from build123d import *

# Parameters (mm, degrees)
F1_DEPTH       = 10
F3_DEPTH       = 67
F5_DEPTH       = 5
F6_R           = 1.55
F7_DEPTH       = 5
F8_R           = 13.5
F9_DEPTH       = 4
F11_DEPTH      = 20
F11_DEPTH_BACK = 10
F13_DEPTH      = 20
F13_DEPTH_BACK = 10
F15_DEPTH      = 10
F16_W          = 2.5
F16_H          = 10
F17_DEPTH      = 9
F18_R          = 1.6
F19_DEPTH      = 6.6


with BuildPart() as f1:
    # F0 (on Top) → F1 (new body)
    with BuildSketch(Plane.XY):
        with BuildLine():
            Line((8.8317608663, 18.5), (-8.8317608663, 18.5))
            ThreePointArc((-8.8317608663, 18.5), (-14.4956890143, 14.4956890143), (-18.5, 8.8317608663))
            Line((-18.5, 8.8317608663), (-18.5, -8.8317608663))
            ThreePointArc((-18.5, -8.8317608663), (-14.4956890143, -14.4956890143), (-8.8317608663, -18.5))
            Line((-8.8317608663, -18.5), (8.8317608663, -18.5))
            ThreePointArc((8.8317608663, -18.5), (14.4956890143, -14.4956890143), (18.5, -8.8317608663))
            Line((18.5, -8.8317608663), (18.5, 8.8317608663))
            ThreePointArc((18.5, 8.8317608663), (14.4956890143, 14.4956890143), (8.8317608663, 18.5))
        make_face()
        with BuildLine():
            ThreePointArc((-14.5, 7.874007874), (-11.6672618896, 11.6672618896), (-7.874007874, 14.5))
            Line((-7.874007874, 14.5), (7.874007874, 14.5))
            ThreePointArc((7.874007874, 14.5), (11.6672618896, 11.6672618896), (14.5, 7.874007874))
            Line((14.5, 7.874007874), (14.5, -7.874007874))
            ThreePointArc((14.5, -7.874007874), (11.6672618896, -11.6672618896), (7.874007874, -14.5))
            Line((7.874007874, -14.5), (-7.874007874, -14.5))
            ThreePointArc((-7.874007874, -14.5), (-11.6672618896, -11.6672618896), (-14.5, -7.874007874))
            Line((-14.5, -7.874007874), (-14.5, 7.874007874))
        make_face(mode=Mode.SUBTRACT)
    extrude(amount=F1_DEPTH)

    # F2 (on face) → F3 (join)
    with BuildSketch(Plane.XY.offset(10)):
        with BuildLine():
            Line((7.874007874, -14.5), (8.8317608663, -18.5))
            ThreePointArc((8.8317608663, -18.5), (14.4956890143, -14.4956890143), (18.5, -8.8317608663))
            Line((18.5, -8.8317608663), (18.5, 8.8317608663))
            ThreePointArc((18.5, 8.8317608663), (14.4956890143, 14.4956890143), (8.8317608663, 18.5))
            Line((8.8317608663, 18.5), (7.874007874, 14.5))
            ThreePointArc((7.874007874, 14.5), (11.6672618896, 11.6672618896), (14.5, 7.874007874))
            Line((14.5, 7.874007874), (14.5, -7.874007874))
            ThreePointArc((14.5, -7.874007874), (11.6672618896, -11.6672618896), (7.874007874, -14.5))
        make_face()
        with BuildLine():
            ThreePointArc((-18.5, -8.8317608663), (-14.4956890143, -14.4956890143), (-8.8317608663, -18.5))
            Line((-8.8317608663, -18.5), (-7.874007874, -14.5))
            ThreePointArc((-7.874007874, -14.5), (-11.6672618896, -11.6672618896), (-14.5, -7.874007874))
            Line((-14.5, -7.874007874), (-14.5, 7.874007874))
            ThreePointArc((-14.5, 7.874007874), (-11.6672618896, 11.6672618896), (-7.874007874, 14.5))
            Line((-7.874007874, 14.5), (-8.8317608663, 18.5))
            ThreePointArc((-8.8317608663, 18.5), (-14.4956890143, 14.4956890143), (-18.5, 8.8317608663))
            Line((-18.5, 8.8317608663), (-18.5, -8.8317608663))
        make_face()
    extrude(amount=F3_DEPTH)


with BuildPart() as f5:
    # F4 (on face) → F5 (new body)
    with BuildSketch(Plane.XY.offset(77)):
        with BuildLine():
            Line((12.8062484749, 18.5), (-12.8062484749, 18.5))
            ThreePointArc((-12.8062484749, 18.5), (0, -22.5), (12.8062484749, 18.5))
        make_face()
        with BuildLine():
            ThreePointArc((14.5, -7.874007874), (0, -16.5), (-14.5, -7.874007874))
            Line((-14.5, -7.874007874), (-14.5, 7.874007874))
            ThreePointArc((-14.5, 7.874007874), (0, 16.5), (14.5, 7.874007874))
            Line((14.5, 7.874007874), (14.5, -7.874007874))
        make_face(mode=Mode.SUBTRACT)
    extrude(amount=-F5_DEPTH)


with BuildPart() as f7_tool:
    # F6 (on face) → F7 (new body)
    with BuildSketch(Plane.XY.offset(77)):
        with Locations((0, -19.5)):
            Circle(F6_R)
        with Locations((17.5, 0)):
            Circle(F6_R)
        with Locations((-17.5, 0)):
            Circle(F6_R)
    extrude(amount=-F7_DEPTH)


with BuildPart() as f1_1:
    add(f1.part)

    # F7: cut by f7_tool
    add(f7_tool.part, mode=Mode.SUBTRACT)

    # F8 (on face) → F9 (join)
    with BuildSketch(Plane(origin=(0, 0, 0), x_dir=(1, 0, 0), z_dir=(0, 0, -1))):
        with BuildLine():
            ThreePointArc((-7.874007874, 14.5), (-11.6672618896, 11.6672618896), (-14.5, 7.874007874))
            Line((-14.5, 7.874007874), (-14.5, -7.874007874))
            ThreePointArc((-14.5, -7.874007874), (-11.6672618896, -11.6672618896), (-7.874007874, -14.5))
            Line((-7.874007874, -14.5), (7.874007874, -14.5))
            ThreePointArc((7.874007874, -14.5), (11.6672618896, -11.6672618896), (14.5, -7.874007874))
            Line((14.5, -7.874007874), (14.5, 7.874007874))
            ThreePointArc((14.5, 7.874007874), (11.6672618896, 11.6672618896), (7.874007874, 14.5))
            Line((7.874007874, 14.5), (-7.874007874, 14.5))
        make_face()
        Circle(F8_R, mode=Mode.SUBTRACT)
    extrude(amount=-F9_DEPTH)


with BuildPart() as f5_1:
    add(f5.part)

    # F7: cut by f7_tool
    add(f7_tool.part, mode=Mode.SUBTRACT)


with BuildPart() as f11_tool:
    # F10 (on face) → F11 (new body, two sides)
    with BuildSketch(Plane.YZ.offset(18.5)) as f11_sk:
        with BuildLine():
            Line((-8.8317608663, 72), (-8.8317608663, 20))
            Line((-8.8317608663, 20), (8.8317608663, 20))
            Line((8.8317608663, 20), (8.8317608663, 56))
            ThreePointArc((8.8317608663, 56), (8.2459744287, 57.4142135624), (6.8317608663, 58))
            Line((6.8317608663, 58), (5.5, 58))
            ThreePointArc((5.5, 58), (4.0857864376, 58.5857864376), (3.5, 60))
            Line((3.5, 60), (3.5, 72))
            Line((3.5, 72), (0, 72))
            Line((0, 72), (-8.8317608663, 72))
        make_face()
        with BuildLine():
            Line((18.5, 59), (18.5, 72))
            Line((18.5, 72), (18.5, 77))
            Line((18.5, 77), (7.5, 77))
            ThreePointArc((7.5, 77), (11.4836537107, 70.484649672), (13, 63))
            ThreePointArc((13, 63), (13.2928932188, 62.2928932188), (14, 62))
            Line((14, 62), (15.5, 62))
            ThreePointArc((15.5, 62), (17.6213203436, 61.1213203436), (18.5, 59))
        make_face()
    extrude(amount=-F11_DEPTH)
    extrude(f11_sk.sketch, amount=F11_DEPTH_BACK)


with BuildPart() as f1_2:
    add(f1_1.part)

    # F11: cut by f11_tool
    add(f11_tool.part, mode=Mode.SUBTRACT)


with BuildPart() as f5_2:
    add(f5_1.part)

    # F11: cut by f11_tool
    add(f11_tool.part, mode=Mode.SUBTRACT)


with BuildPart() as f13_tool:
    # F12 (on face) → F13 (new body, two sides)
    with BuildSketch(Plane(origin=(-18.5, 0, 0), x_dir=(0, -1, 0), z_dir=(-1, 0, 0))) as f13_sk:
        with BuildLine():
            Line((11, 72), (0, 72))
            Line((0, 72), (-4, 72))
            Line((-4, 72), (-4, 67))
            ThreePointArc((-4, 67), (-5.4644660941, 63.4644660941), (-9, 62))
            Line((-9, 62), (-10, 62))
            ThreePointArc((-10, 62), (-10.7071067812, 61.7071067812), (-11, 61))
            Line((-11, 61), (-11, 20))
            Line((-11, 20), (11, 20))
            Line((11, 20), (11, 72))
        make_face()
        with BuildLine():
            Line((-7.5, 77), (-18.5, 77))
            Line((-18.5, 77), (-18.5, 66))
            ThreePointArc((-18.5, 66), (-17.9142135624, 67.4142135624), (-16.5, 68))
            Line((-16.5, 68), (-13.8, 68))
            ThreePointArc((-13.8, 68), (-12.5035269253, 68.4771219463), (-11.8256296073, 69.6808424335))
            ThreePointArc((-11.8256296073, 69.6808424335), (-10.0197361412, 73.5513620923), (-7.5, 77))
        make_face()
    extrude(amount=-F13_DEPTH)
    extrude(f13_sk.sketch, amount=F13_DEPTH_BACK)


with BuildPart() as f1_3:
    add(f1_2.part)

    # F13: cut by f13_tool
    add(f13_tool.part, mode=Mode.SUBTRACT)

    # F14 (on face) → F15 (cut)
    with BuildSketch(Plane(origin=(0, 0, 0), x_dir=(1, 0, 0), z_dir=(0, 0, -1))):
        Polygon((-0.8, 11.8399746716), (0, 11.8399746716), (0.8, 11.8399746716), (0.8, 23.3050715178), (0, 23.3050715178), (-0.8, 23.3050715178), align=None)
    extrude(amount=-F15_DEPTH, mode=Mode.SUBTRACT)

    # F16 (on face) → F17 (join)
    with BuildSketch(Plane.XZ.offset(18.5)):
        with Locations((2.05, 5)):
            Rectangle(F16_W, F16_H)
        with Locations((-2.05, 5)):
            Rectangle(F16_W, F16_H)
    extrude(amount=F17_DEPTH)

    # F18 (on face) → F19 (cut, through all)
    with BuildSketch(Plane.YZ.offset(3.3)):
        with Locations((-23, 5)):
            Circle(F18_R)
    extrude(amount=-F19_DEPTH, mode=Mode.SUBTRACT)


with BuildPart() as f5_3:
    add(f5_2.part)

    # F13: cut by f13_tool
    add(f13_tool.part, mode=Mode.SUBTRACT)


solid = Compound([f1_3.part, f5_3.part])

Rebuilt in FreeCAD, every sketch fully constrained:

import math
import FreeCAD as App
import Part
import Sketcher

doc = App.newDocument("Part")
body = doc.addObject("PartDesign::Body", "Body")

sketch1 = doc.addObject("Sketcher::SketchObject", "Sketch")
body.addObject(sketch1)
sketch1.AttachmentSupport = (doc.XY_Plane, [""])
sketch1.MapMode = "FlatFace"
sketch1.addGeometry([
    Part.LineSegment(App.Vector(9, 18, 0), App.Vector(-9, 18, 0)),
    Part.ArcOfCircle(Part.Circle(App.Vector(0, 0, 0), App.Vector(0, 0, 1), 20), math.radians(116), math.radians(154)),
    Part.LineSegment(App.Vector(-18, 9, 0), App.Vector(-18, -9, 0)),
    Part.ArcOfCircle(Part.Circle(App.Vector(0, 0, 0), App.Vector(0, 0, 1), 20), math.radians(-154), math.radians(-116)),
    Part.LineSegment(App.Vector(-9, -18, 0), App.Vector(9, -18, 0)),
    Part.ArcOfCircle(Part.Circle(App.Vector(0, 0, 0), App.Vector(0, 0, 1), 20), math.radians(-64), math.radians(-26)),
    Part.LineSegment(App.Vector(18, -9, 0), App.Vector(18, 9, 0)),
    Part.ArcOfCircle(Part.Circle(App.Vector(0, 0, 0), App.Vector(0, 0, 1), 20), math.radians(26), math.radians(64)),
    Part.LineSegment(App.Vector(-14, -8, 0), App.Vector(-14, 8, 0)),
    Part.ArcOfCircle(Part.Circle(App.Vector(0, 0, 0), App.Vector(0, 0, 1), 16), math.radians(119), math.radians(151)),
    Part.LineSegment(App.Vector(-8, 14, 0), App.Vector(8, 14, 0)),
    Part.ArcOfCircle(Part.Circle(App.Vector(0, 0, 0), App.Vector(0, 0, 1), 16), math.radians(29), math.radians(61)),
    Part.LineSegment(App.Vector(14, 8, 0), App.Vector(14, -8, 0)),
    Part.ArcOfCircle(Part.Circle(App.Vector(0, 0, 0), App.Vector(0, 0, 1), 16), math.radians(-61), math.radians(-29)),
    Part.LineSegment(App.Vector(8, -14, 0), App.Vector(-8, -14, 0)),
    Part.ArcOfCircle(Part.Circle(App.Vector(0, 0, 0), App.Vector(0, 0, 1), 16), math.radians(-151), math.radians(-119)),
], False)
sketch1.addConstraint([
    Sketcher.Constraint("Coincident", 0, 2, 1, 1),
    Sketcher.Constraint("Coincident", 1, 2, 2, 1),
    Sketcher.Constraint("Coincident", 2, 2, 3, 1),
    Sketcher.Constraint("Coincident", 3, 2, 4, 1),
    Sketcher.Constraint("Coincident", 4, 2, 5, 1),
    Sketcher.Constraint("Coincident", 5, 2, 6, 1),
    Sketcher.Constraint("Coincident", 6, 2, 7, 1),
    Sketcher.Constraint("Coincident", 7, 2, 0, 1),
    Sketcher.Constraint("Coincident", 8, 2, 9, 2),
    Sketcher.Constraint("Coincident", 9, 1, 10, 1),
    Sketcher.Constraint("Coincident", 10, 2, 11, 2),
    Sketcher.Constraint("Coincident", 11, 1, 12, 1),
    Sketcher.Constraint("Coincident", 12, 2, 13, 2),
    Sketcher.Constraint("Coincident", 13, 1, 14, 1),
    Sketcher.Constraint("Coincident", 14, 2, 15, 2),
    Sketcher.Constraint("Coincident", 15, 1, 8, 1),
    Sketcher.Constraint("Horizontal", 0),
    Sketcher.Constraint("Vertical", 2),
    Sketcher.Constraint("Horizontal", 4),
    Sketcher.Constraint("Vertical", 6),
    Sketcher.Constraint("Vertical", 8),
    Sketcher.Constraint("Horizontal", 10),
    Sketcher.Constraint("Vertical", 12),
    Sketcher.Constraint("Horizontal", 14),
    Sketcher.Constraint("Coincident", 1, 3, -1, 1),
    Sketcher.Constraint("Coincident", 3, 3, -1, 1),
    Sketcher.Constraint("Coincident", 5, 3, -1, 1),
    Sketcher.Constraint("Coincident", 7, 3, -1, 1),
    Sketcher.Constraint("Coincident", 9, 3, -1, 1),
    Sketcher.Constraint("Coincident", 11, 3, -1, 1),
    Sketcher.Constraint("Coincident", 13, 3, -1, 1),
    Sketcher.Constraint("Coincident", 15, 3, -1, 1),
    Sketcher.Constraint("Equal", 1, 3),
    Sketcher.Constraint("Equal", 3, 5),
    Sketcher.Constraint("Equal", 5, 7),
    Sketcher.Constraint("Equal", 9, 11),
    Sketcher.Constraint("Equal", 11, 13),
    Sketcher.Constraint("Equal", 13, 15),
    Sketcher.Constraint("Horizontal", 2, 2, 5, 2),
    Sketcher.Constraint("Horizontal", 8, 2, 11, 1),
    Sketcher.Constraint("Vertical", 0, 2, 3, 2),
    Sketcher.Constraint("Vertical", 10, 2, 13, 1),
    Sketcher.Constraint("Equal", 4, 2),
    Sketcher.Constraint("Equal", 14, 8),
    Sketcher.Constraint("Radius", 1, 20.5),
    Sketcher.Constraint("Radius", 9, 16.5),
    Sketcher.Constraint("DistanceX", 1, 2, 8, 2, 4.0),
    Sketcher.Constraint("DistanceY", -1, 1, 0, 2, 18.5),
])
pad1 = doc.addObject("PartDesign::Pad", "Pad")
body.addObject(pad1)
pad1.Profile = sketch1
pad1.Length = 10

sketch2 = doc.addObject("Sketcher::SketchObject", "Sketch001")
body.addObject(sketch2)
sketch2.AttachmentSupport = (doc.XY_Plane, [""])
sketch2.MapMode = "FlatFace"
sketch2.AttachmentOffset = App.Placement(App.Vector(0, 0, 10), App.Rotation())
sketch2.addGeometry([
    Part.LineSegment(App.Vector(7.9, -14.5, 0), App.Vector(8.8, -18.5, 0)),
    Part.ArcOfCircle(Part.Circle(App.Vector(0, 0, 0), App.Vector(0, 0, 1), 20.5), math.radians(-64), math.radians(-26)),
    Part.LineSegment(App.Vector(18.5, -8.8, 0), App.Vector(18.5, 8.8, 0)),
    Part.ArcOfCircle(Part.Circle(App.Vector(0, 0, 0), App.Vector(0, 0, 1), 20.5), math.radians(26), math.radians(64)),
    Part.LineSegment(App.Vector(8.8, 18.5, 0), App.Vector(7.9, 14.5, 0)),
    Part.ArcOfCircle(Part.Circle(App.Vector(0, 0, 0), App.Vector(0, 0, 1), 16.5), math.radians(29), math.radians(61)),
    Part.LineSegment(App.Vector(14.5, 7.9, 0), App.Vector(14.5, -7.9, 0)),
    Part.ArcOfCircle(Part.Circle(App.Vector(0, 0, 0), App.Vector(0, 0, 1), 16.5), math.radians(-61), math.radians(-29)),
    Part.ArcOfCircle(Part.Circle(App.Vector(0, 0, 0), App.Vector(0, 0, 1), 20.5), math.radians(-154), math.radians(-116)),
    Part.LineSegment(App.Vector(-8.8, -18.5, 0), App.Vector(-7.9, -14.5, 0)),
    Part.ArcOfCircle(Part.Circle(App.Vector(0, 0, 0), App.Vector(0, 0, 1), 16.5), math.radians(-151), math.radians(-119)),
    Part.LineSegment(App.Vector(-14.5, -7.9, 0), App.Vector(-14.5, 7.9, 0)),
    Part.ArcOfCircle(Part.Circle(App.Vector(0, 0, 0), App.Vector(0, 0, 1), 16.5), math.radians(119), math.radians(151)),
    Part.LineSegment(App.Vector(-7.9, 14.5, 0), App.Vector(-8.8, 18.5, 0)),
    Part.ArcOfCircle(Part.Circle(App.Vector(0, 0, 0), App.Vector(0, 0, 1), 20.5), math.radians(116), math.radians(154)),
    Part.LineSegment(App.Vector(-18.5, 8.8, 0), App.Vector(-18.5, -8.8, 0)),
], False)
sketch2.addConstraint([
    Sketcher.Constraint("Coincident", 0, 2, 1, 1),
    Sketcher.Constraint("Coincident", 1, 2, 2, 1),
    Sketcher.Constraint("Coincident", 2, 2, 3, 1),
    Sketcher.Constraint("Coincident", 3, 2, 4, 1),
    Sketcher.Constraint("Coincident", 4, 2, 5, 2),
    Sketcher.Constraint("Coincident", 5, 1, 6, 1),
    Sketcher.Constraint("Coincident", 6, 2, 7, 2),
    Sketcher.Constraint("Coincident", 7, 1, 0, 1),
    Sketcher.Constraint("Coincident", 8, 2, 9, 1),
    Sketcher.Constraint("Coincident", 9, 2, 10, 2),
    Sketcher.Constraint("Coincident", 10, 1, 11, 1),
    Sketcher.Constraint("Coincident", 11, 2, 12, 2),
    Sketcher.Constraint("Coincident", 12, 1, 13, 1),
    Sketcher.Constraint("Coincident", 13, 2, 14, 1),
    Sketcher.Constraint("Coincident", 14, 2, 15, 1),
    Sketcher.Constraint("Coincident", 15, 2, 8, 1),
    Sketcher.Constraint("Vertical", 2),
    Sketcher.Constraint("Vertical", 6),
    Sketcher.Constraint("Vertical", 11),
    Sketcher.Constraint("Vertical", 15),
    Sketcher.Constraint("Coincident", 1, 3, -1, 1),
    Sketcher.Constraint("Coincident", 3, 3, -1, 1),
    Sketcher.Constraint("Coincident", 5, 3, -1, 1),
    Sketcher.Constraint("Coincident", 7, 3, -1, 1),
    Sketcher.Constraint("Coincident", 8, 3, -1, 1),
    Sketcher.Constraint("Coincident", 10, 3, -1, 1),
    Sketcher.Constraint("Coincident", 12, 3, -1, 1),
    Sketcher.Constraint("Coincident", 14, 3, -1, 1),
    Sketcher.Constraint("Equal", 1, 3),
    Sketcher.Constraint("Equal", 5, 7),
    Sketcher.Constraint("Equal", 3, 8),
    Sketcher.Constraint("Equal", 7, 10),
    Sketcher.Constraint("Equal", 10, 12),
    Sketcher.Constraint("Equal", 8, 14),
    Sketcher.Constraint("Parallel", 4, 9),
    Sketcher.Constraint("Parallel", 0, 13),
    Sketcher.Constraint("Horizontal", 0, 2, 8, 2),
    Sketcher.Constraint("Horizontal", 7, 1, 9, 2),
    Sketcher.Constraint("Horizontal", 6, 2, 10, 1),
    Sketcher.Constraint("Horizontal", 4, 2, 12, 1),
    Sketcher.Constraint("Horizontal", 2, 2, 14, 2),
    Sketcher.Constraint("Vertical", 0, 2, 3, 2),
    Sketcher.Constraint("Radius", 1, 20.5),
    Sketcher.Constraint("Radius", 5, 16.5),
    Sketcher.Constraint("DistanceY", 4, 2, 3, 2, 4.0),
    Sketcher.Constraint("DistanceX", 5, 1, 2, 2, 4.0),
    Sketcher.Constraint("DistanceY", 0, 2, -1, 1, 18.5),
    Sketcher.Constraint("DistanceX", -1, 1, 1, 2, 18.5),
])
pad2 = doc.addObject("PartDesign::Pad", "Pad001")
body.addObject(pad2)
pad2.Profile = sketch2
pad2.Length = 67
body2 = doc.addObject("PartDesign::Body", "Body001")

sketch3 = doc.addObject("Sketcher::SketchObject", "Sketch002")
body2.addObject(sketch3)
sketch3.AttachmentSupport = (doc.getObject("XY_Plane001"), [""])
sketch3.MapMode = "FlatFace"
sketch3.AttachmentOffset = App.Placement(App.Vector(0, 0, 77), App.Rotation())
sketch3.addGeometry([
    Part.LineSegment(App.Vector(13, 18, 0), App.Vector(-13, 18, 0)),
    Part.ArcOfCircle(Part.Circle(App.Vector(0, 0, 0), App.Vector(0, 0, 1), 22), math.radians(125), math.radians(415)),
    Part.LineSegment(App.Vector(14, 8, 0), App.Vector(14, -8, 0)),
    Part.ArcOfCircle(Part.Circle(App.Vector(0, 0, 0), App.Vector(0, 0, 1), 16), math.radians(-151), math.radians(-29)),
    Part.LineSegment(App.Vector(-14, -8, 0), App.Vector(-14, 8, 0)),
    Part.ArcOfCircle(Part.Circle(App.Vector(0, 0, 0), App.Vector(0, 0, 1), 16), math.radians(29), math.radians(151)),
], False)
sketch3.addConstraint([
    Sketcher.Constraint("Coincident", 0, 1, 1, 2),
    Sketcher.Constraint("Coincident", 1, 1, 0, 2),
    Sketcher.Constraint("Coincident", 2, 2, 3, 2),
    Sketcher.Constraint("Coincident", 3, 1, 4, 1),
    Sketcher.Constraint("Coincident", 4, 2, 5, 2),
    Sketcher.Constraint("Coincident", 5, 1, 2, 1),
    Sketcher.Constraint("Horizontal", 0),
    Sketcher.Constraint("Vertical", 2),
    Sketcher.Constraint("Vertical", 4),
    Sketcher.Constraint("Coincident", 1, 3, -1, 1),
    Sketcher.Constraint("Coincident", 3, 3, -1, 1),
    Sketcher.Constraint("Coincident", 5, 3, -1, 1),
    Sketcher.Constraint("Equal", 3, 5),
    Sketcher.Constraint("Horizontal", 2, 2, 3, 1),
    Sketcher.Constraint("Radius", 1, 22.5),
    Sketcher.Constraint("Radius", 3, 16.5),
    Sketcher.Constraint("DistanceX", 3, 1, 2, 2, 29.0),
    Sketcher.Constraint("DistanceY", -1, 1, 0, 1, 18.5),
])
pad3 = doc.addObject("PartDesign::Pad", "Pad002")
body2.addObject(pad3)
pad3.Profile = sketch3
pad3.Length = 5
pad3.Reversed = True
body3 = doc.addObject("PartDesign::Body", "Body002")
body3.AllowCompound = True

sketch4 = doc.addObject("Sketcher::SketchObject", "Sketch003")
body3.addObject(sketch4)
sketch4.AttachmentSupport = (doc.getObject("XY_Plane002"), [""])
sketch4.MapMode = "FlatFace"
sketch4.AttachmentOffset = App.Placement(App.Vector(0, 0, 77), App.Rotation())
sketch4.addGeometry([
    Part.Circle(App.Vector(0, -19.5, 0), App.Vector(0, 0, 1), 1.6),
    Part.Circle(App.Vector(17.5, 0, 0), App.Vector(0, 0, 1), 1.6),
    Part.Circle(App.Vector(-17.5, 0, 0), App.Vector(0, 0, 1), 1.6),
], False)
sketch4.addConstraint([
    Sketcher.Constraint("Equal", 0, 1),
    Sketcher.Constraint("Equal", 1, 2),
    Sketcher.Constraint("Symmetric", 1, 3, 2, 3, -1, 1),
    Sketcher.Constraint("PointOnObject", 0, 3, -2),
    Sketcher.Constraint("PointOnObject", 1, 3, -1),
    Sketcher.Constraint("Diameter", 0, 3.1),
    Sketcher.Constraint("DistanceX", 2, 3, 1, 3, 35.0),
    Sketcher.Constraint("DistanceY", 0, 3, -1, 1, 19.5),
])
pad4 = doc.addObject("PartDesign::Pad", "Pad003")
body3.addObject(pad4)
pad4.Profile = sketch4
pad4.Length = 5
pad4.Reversed = True
doc.recompute()

body4 = doc.addObject("PartDesign::Body", "Body003")
body4.BaseFeature = body3
boolean = doc.addObject("PartDesign::Boolean", "Boolean")
body.addObject(boolean)
boolean.Type = "Cut"
boolean.addObjects([body4])
doc.recompute()

sketch5 = doc.addObject("Sketcher::SketchObject", "Sketch004")
body.addObject(sketch5)
sketch5.AttachmentSupport = (doc.XY_Plane, [""])
sketch5.MapMode = "FlatFace"
sketch5.addGeometry([
    Part.ArcOfCircle(Part.Circle(App.Vector(0, 0, 0), App.Vector(0, 0, 1), 16), math.radians(-151), math.radians(-119)),
    Part.LineSegment(App.Vector(-14, -8, 0), App.Vector(-14, 8, 0)),
    Part.ArcOfCircle(Part.Circle(App.Vector(0, 0, 0), App.Vector(0, 0, 1), 16), math.radians(119), math.radians(151)),
    Part.LineSegment(App.Vector(-8, 14, 0), App.Vector(8, 14, 0)),
    Part.ArcOfCircle(Part.Circle(App.Vector(0, 0, 0), App.Vector(0, 0, 1), 16), math.radians(29), math.radians(61)),
    Part.LineSegment(App.Vector(14, 8, 0), App.Vector(14, -8, 0)),
    Part.ArcOfCircle(Part.Circle(App.Vector(0, 0, 0), App.Vector(0, 0, 1), 16), math.radians(-61), math.radians(-29)),
    Part.LineSegment(App.Vector(8, -14, 0), App.Vector(-8, -14, 0)),
    Part.Circle(App.Vector(0, 0, 0), App.Vector(0, 0, 1), 14),
], False)
sketch5.addConstraint([
    Sketcher.Constraint("Coincident", 0, 1, 1, 1),
    Sketcher.Constraint("Coincident", 1, 2, 2, 2),
    Sketcher.Constraint("Coincident", 2, 1, 3, 1),
    Sketcher.Constraint("Coincident", 3, 2, 4, 2),
    Sketcher.Constraint("Coincident", 4, 1, 5, 1),
    Sketcher.Constraint("Coincident", 5, 2, 6, 2),
    Sketcher.Constraint("Coincident", 6, 1, 7, 1),
    Sketcher.Constraint("Coincident", 7, 2, 0, 2),
    Sketcher.Constraint("Vertical", 1),
    Sketcher.Constraint("Horizontal", 3),
    Sketcher.Constraint("Vertical", 5),
    Sketcher.Constraint("Horizontal", 7),
    Sketcher.Constraint("Coincident", 0, 3, -1, 1),
    Sketcher.Constraint("Coincident", 2, 3, -1, 1),
    Sketcher.Constraint("Coincident", 4, 3, -1, 1),
    Sketcher.Constraint("Coincident", 6, 3, -1, 1),
    Sketcher.Constraint("Coincident", 8, 3, -1, 1),
    Sketcher.Constraint("Equal", 0, 2),
    Sketcher.Constraint("Equal", 2, 4),
    Sketcher.Constraint("Equal", 4, 6),
    Sketcher.Constraint("Horizontal", 1, 2, 4, 1),
    Sketcher.Constraint("Vertical", 3, 2, 6, 1),
    Sketcher.Constraint("Equal", 7, 1),
    Sketcher.Constraint("Diameter", 8, 27.0),
    Sketcher.Constraint("Radius", 0, 16.5),
    Sketcher.Constraint("DistanceX", 0, 1, -1, 1, 14.5),
])
pad5 = doc.addObject("PartDesign::Pad", "Pad004")
body.addObject(pad5)
pad5.Profile = sketch5
pad5.Length = 4
doc.recompute()

boolean2 = doc.addObject("PartDesign::Boolean", "Boolean001")
body2.addObject(boolean2)
boolean2.Type = "Cut"
boolean2.addObjects([body3])
body5 = doc.addObject("PartDesign::Body", "Body004")
body5.AllowCompound = True

sketch6 = doc.addObject("Sketcher::SketchObject", "Sketch005")
body5.addObject(sketch6)
sketch6.AttachmentSupport = (doc.getObject("YZ_Plane004"), [""])
sketch6.MapMode = "FlatFace"
sketch6.AttachmentOffset = App.Placement(App.Vector(0, 0, 18.5), App.Rotation())
sketch6.addGeometry([
    Part.LineSegment(App.Vector(-8.8, 72, 0), App.Vector(-8.8, 20, 0)),
    Part.LineSegment(App.Vector(-8.8, 20, 0), App.Vector(8.8, 20, 0)),
    Part.LineSegment(App.Vector(8.8, 20, 0), App.Vector(8.8, 56, 0)),
    Part.ArcOfCircle(Part.Circle(App.Vector(6.8, 56, 0), App.Vector(0, 0, 1), 2), math.radians(0), math.radians(90)),
    Part.LineSegment(App.Vector(6.8, 58, 0), App.Vector(5.5, 58, 0)),
    Part.ArcOfCircle(Part.Circle(App.Vector(5.5, 60, 0), App.Vector(0, 0, 1), 2), math.radians(180), math.radians(270)),
    Part.LineSegment(App.Vector(3.5, 60, 0), App.Vector(3.5, 72, 0)),
    Part.LineSegment(App.Vector(3.5, 72, 0), App.Vector(-8.8, 72, 0)),
    Part.LineSegment(App.Vector(18.5, 59, 0), App.Vector(18.5, 77, 0)),
    Part.LineSegment(App.Vector(18.5, 77, 0), App.Vector(7.5, 77, 0)),
    Part.ArcOfCircle(Part.Circle(App.Vector(-9, 62.4, 0), App.Vector(0, 0, 1), 22), math.radians(1), math.radians(41)),
    Part.ArcOfCircle(Part.Circle(App.Vector(14, 63, 0), App.Vector(0, 0, 1), 1), math.radians(180), math.radians(270)),
    Part.LineSegment(App.Vector(14, 62, 0), App.Vector(15.5, 62, 0)),
    Part.ArcOfCircle(Part.Circle(App.Vector(15.5, 59, 0), App.Vector(0, 0, 1), 3), math.radians(0), math.radians(90)),
], False)
sketch6.addConstraint([
    Sketcher.Constraint("Coincident", 0, 2, 1, 1),
    Sketcher.Constraint("Coincident", 1, 2, 2, 1),
    Sketcher.Constraint("Tangent", 2, 2, 3, 1),
    Sketcher.Constraint("Tangent", 3, 2, 4, 1),
    Sketcher.Constraint("Tangent", 4, 2, 5, 2),
    Sketcher.Constraint("Tangent", 5, 1, 6, 1),
    Sketcher.Constraint("Coincident", 6, 2, 7, 1),
    Sketcher.Constraint("Coincident", 7, 2, 0, 1),
    Sketcher.Constraint("Coincident", 8, 2, 9, 1),
    Sketcher.Constraint("Coincident", 9, 2, 10, 2),
    Sketcher.Constraint("Coincident", 10, 1, 11, 1),
    Sketcher.Constraint("Tangent", 11, 2, 12, 1),
    Sketcher.Constraint("Tangent", 12, 2, 13, 2),
    Sketcher.Constraint("Tangent", 13, 1, 8, 1),
    Sketcher.Constraint("Vertical", 0),
    Sketcher.Constraint("Horizontal", 1),
    Sketcher.Constraint("Vertical", 2),
    Sketcher.Constraint("Horizontal", 4),
    Sketcher.Constraint("Vertical", 6),
    Sketcher.Constraint("Horizontal", 7),
    Sketcher.Constraint("Vertical", 8),
    Sketcher.Constraint("Horizontal", 9),
    Sketcher.Constraint("Horizontal", 12),
    Sketcher.Constraint("Equal", 3, 5),
    Sketcher.Constraint("Horizontal", 11, 3, 10, 1),
    Sketcher.Constraint("Radius", 3, 2.0),
    Sketcher.Constraint("Radius", 10, 22.0),
    Sketcher.Constraint("Radius", 11, 1.0),
    Sketcher.Constraint("Radius", 13, 3.0),
    Sketcher.Constraint("DistanceX", 9, 2, 9, 1, 11.0),
    Sketcher.Constraint("DistanceY", 0, 2, 0, 1, 52.0),
    Sketcher.Constraint("DistanceY", 2, 1, 2, 2, 36.0),
    Sketcher.Constraint("DistanceY", 8, 1, 8, 2, 18.0),
    Sketcher.Constraint("DistanceX", 12, 1, 12, 2, 1.5),
    Sketcher.Constraint("DistanceY", -1, 1, 3, 3, 56.0),
    Sketcher.Constraint("DistanceX", -1, 1, 11, 3, 14.0),
    Sketcher.Constraint("DistanceY", -1, 1, 11, 3, 63.0),
    Sketcher.Constraint("DistanceX", 5, 3, 13, 3, 10.0),
    Sketcher.Constraint("DistanceX", 1, 1, 1, 2, 17.663522),
    Sketcher.Constraint("DistanceX", 4, 2, 4, 1, 1.331761),
])
pad6 = doc.addObject("PartDesign::Pad", "Pad005")
body5.addObject(pad6)
pad6.Profile = sketch6
pad6.Type = "TwoLengths"
pad6.Length = 20
pad6.Length2 = 10
pad6.Reversed = True
doc.recompute()

body6 = doc.addObject("PartDesign::Body", "Body005")
body6.BaseFeature = body5
boolean3 = doc.addObject("PartDesign::Boolean", "Boolean002")
body.addObject(boolean3)
boolean3.Type = "Cut"
boolean3.addObjects([body6])
doc.recompute()

boolean4 = doc.addObject("PartDesign::Boolean", "Boolean003")
body2.addObject(boolean4)
boolean4.Type = "Cut"
boolean4.addObjects([body5])
body7 = doc.addObject("PartDesign::Body", "Body006")
body7.AllowCompound = True

sketch7 = doc.addObject("Sketcher::SketchObject", "Sketch006")
body7.addObject(sketch7)
sketch7.AttachmentSupport = (doc.getObject("YZ_Plane006"), [""])
sketch7.MapMode = "FlatFace"
sketch7.AttachmentOffset = App.Placement(App.Vector(0, 0, -18.5), App.Rotation())
sketch7.addGeometry([
    Part.LineSegment(App.Vector(-11, 72, 0), App.Vector(4, 72, 0)),
    Part.LineSegment(App.Vector(4, 72, 0), App.Vector(4, 67, 0)),
    Part.ArcOfCircle(Part.Circle(App.Vector(9, 67, 0), App.Vector(0, 0, 1), 5), math.radians(180), math.radians(270)),
    Part.LineSegment(App.Vector(9, 62, 0), App.Vector(10, 62, 0)),
    Part.ArcOfCircle(Part.Circle(App.Vector(10, 61, 0), App.Vector(0, 0, 1), 1), math.radians(0), math.radians(90)),
    Part.LineSegment(App.Vector(11, 61, 0), App.Vector(11, 20, 0)),
    Part.LineSegment(App.Vector(11, 20, 0), App.Vector(-11, 20, 0)),
    Part.LineSegment(App.Vector(-11, 20, 0), App.Vector(-11, 72, 0)),
    Part.LineSegment(App.Vector(7.5, 77, 0), App.Vector(18.5, 77, 0)),
    Part.LineSegment(App.Vector(18.5, 77, 0), App.Vector(18.5, 66, 0)),
    Part.ArcOfCircle(Part.Circle(App.Vector(16.5, 66, 0), App.Vector(0, 0, 1), 2), math.radians(0), math.radians(90)),
    Part.LineSegment(App.Vector(16.5, 68, 0), App.Vector(13.8, 68, 0)),
    Part.ArcOfCircle(Part.Circle(App.Vector(13.8, 70, 0), App.Vector(0, 0, 1), 2), math.radians(-171), math.radians(-90)),
    Part.ArcOfCircle(Part.Circle(App.Vector(-8.9, 62.4, 0), App.Vector(0, 0, 1), 22), math.radians(19), math.radians(42)),
], False)
sketch7.addConstraint([
    Sketcher.Constraint("Coincident", 0, 2, 1, 1),
    Sketcher.Constraint("Tangent", 1, 2, 2, 1),
    Sketcher.Constraint("Tangent", 2, 2, 3, 1),
    Sketcher.Constraint("Tangent", 3, 2, 4, 2),
    Sketcher.Constraint("Tangent", 4, 1, 5, 1),
    Sketcher.Constraint("Coincident", 5, 2, 6, 1),
    Sketcher.Constraint("Coincident", 6, 2, 7, 1),
    Sketcher.Constraint("Coincident", 7, 2, 0, 1),
    Sketcher.Constraint("Coincident", 8, 2, 9, 1),
    Sketcher.Constraint("Tangent", 9, 2, 10, 1),
    Sketcher.Constraint("Tangent", 10, 2, 11, 1),
    Sketcher.Constraint("Tangent", 11, 2, 12, 2),
    Sketcher.Constraint("Coincident", 12, 1, 13, 1),
    Sketcher.Constraint("Coincident", 13, 2, 8, 1),
    Sketcher.Constraint("Horizontal", 0),
    Sketcher.Constraint("Vertical", 1),
    Sketcher.Constraint("Horizontal", 3),
    Sketcher.Constraint("Vertical", 5),
    Sketcher.Constraint("Horizontal", 6),
    Sketcher.Constraint("Vertical", 7),
    Sketcher.Constraint("Horizontal", 8),
    Sketcher.Constraint("Vertical", 9),
    Sketcher.Constraint("Horizontal", 11),
    Sketcher.Constraint("Equal", 10, 12),
    Sketcher.Constraint("Equal", 8, 9),
    Sketcher.Constraint("Radius", 2, 5.0),
    Sketcher.Constraint("Radius", 4, 1.0),
    Sketcher.Constraint("Radius", 10, 2.0),
    Sketcher.Constraint("Radius", 13, 22.0),
    Sketcher.Constraint("DistanceX", 0, 1, 0, 2, 15.0),
    Sketcher.Constraint("DistanceX", 3, 1, 3, 2, 1.0),
    Sketcher.Constraint("DistanceX", 8, 1, 8, 2, 11.0),
    Sketcher.Constraint("DistanceY", 1, 2, 1, 1, 5.0),
    Sketcher.Constraint("DistanceY", 5, 2, 5, 1, 41.0),
    Sketcher.Constraint("DistanceX", 11, 2, 11, 1, 2.7),
    Sketcher.Constraint("DistanceX", -1, 1, 2, 3, 9.0),
    Sketcher.Constraint("DistanceY", -1, 1, 2, 3, 67.0),
    Sketcher.Constraint("DistanceY", -1, 1, 10, 3, 66.0),
    Sketcher.Constraint("DistanceX", -1, 1, 10, 3, 16.5),
    Sketcher.Constraint("DistanceX", -1, 1, 12, 1, 11.82563),
])
pad7 = doc.addObject("PartDesign::Pad", "Pad006")
body7.addObject(pad7)
pad7.Profile = sketch7
pad7.Type = "TwoLengths"
pad7.Length = 20
pad7.Length2 = 10
doc.recompute()

body8 = doc.addObject("PartDesign::Body", "Body007")
body8.BaseFeature = body7
boolean5 = doc.addObject("PartDesign::Boolean", "Boolean004")
body.addObject(boolean5)
boolean5.Type = "Cut"
boolean5.addObjects([body8])
doc.recompute()

sketch8 = doc.addObject("Sketcher::SketchObject", "Sketch007")
body.addObject(sketch8)
sketch8.AttachmentSupport = (doc.XY_Plane, [""])
sketch8.MapMode = "FlatFace"
sketch8.addGeometry([
    Part.LineSegment(App.Vector(-0.8, -11.8, 0), App.Vector(0.8, -11.8, 0)),
    Part.LineSegment(App.Vector(0.8, -11.8, 0), App.Vector(0.8, -23.3, 0)),
    Part.LineSegment(App.Vector(0.8, -23.3, 0), App.Vector(-0.8, -23.3, 0)),
    Part.LineSegment(App.Vector(-0.8, -23.3, 0), App.Vector(-0.8, -11.8, 0)),
], False)
sketch8.addConstraint([
    Sketcher.Constraint("Coincident", 0, 2, 1, 1),
    Sketcher.Constraint("Coincident", 1, 2, 2, 1),
    Sketcher.Constraint("Coincident", 2, 2, 3, 1),
    Sketcher.Constraint("Coincident", 3, 2, 0, 1),
    Sketcher.Constraint("Horizontal", 0),
    Sketcher.Constraint("Vertical", 1),
    Sketcher.Constraint("Horizontal", 2),
    Sketcher.Constraint("Vertical", 3),
    Sketcher.Constraint("DistanceX", 0, 1, 0, 2, 1.6),
    Sketcher.Constraint("DistanceX", -1, 1, 0, 2, 0.8),
    Sketcher.Constraint("DistanceY", 1, 2, 1, 1, 11.465097),
    Sketcher.Constraint("DistanceY", 1, 2, -1, 1, 23.305072),
])
pocket1 = doc.addObject("PartDesign::Pocket", "Pocket")
body.addObject(pocket1)
pocket1.Profile = sketch8
pocket1.Length = 10
pocket1.Reversed = True

sketch9 = doc.addObject("Sketcher::SketchObject", "Sketch008")
body.addObject(sketch9)
sketch9.AttachmentSupport = (doc.XZ_Plane, [""])
sketch9.MapMode = "FlatFace"
sketch9.AttachmentOffset = App.Placement(App.Vector(0, 0, 18.5), App.Rotation())
sketch9.addGeometry([
    Part.LineSegment(App.Vector(0.8, 10, 0), App.Vector(0.8, 0, 0)),
    Part.LineSegment(App.Vector(0.8, 0, 0), App.Vector(3.3, 0, 0)),
    Part.LineSegment(App.Vector(3.3, 0, 0), App.Vector(3.3, 10, 0)),
    Part.LineSegment(App.Vector(3.3, 10, 0), App.Vector(0.8, 10, 0)),
    Part.LineSegment(App.Vector(-3.3, 10, 0), App.Vector(-3.3, 0, 0)),
    Part.LineSegment(App.Vector(-3.3, 0, 0), App.Vector(-0.8, 0, 0)),
    Part.LineSegment(App.Vector(-0.8, 0, 0), App.Vector(-0.8, 10, 0)),
    Part.LineSegment(App.Vector(-0.8, 10, 0), App.Vector(-3.3, 10, 0)),
], False)
sketch9.addConstraint([
    Sketcher.Constraint("Coincident", 0, 2, 1, 1),
    Sketcher.Constraint("Coincident", 1, 2, 2, 1),
    Sketcher.Constraint("Coincident", 2, 2, 3, 1),
    Sketcher.Constraint("Coincident", 3, 2, 0, 1),
    Sketcher.Constraint("Coincident", 4, 2, 5, 1),
    Sketcher.Constraint("Coincident", 5, 2, 6, 1),
    Sketcher.Constraint("Coincident", 6, 2, 7, 1),
    Sketcher.Constraint("Coincident", 7, 2, 4, 1),
    Sketcher.Constraint("Vertical", 0),
    Sketcher.Constraint("Horizontal", 1),
    Sketcher.Constraint("Vertical", 2),
    Sketcher.Constraint("Horizontal", 3),
    Sketcher.Constraint("Vertical", 4),
    Sketcher.Constraint("Horizontal", 5),
    Sketcher.Constraint("Vertical", 6),
    Sketcher.Constraint("Horizontal", 7),
    Sketcher.Constraint("Symmetric", 1, 2, 4, 2, -1, 1),
    Sketcher.Constraint("Symmetric", 0, 2, 5, 2, -2),
    Sketcher.Constraint("Horizontal", 3, 2, 6, 2),
    Sketcher.Constraint("DistanceY", 0, 2, 0, 1, 10.0),
    Sketcher.Constraint("DistanceX", 1, 1, 1, 2, 2.5),
    Sketcher.Constraint("DistanceX", -1, 1, 0, 2, 0.8),
])
pad8 = doc.addObject("PartDesign::Pad", "Pad007")
body.addObject(pad8)
pad8.Profile = sketch9
pad8.Length = 9

sketch10 = doc.addObject("Sketcher::SketchObject", "Sketch009")
body.addObject(sketch10)
sketch10.AttachmentSupport = (doc.YZ_Plane, [""])
sketch10.MapMode = "FlatFace"
sketch10.AttachmentOffset = App.Placement(App.Vector(0, 0, 3.3), App.Rotation())
sketch10.addGeometry(Part.Circle(App.Vector(-23, 5, 0), App.Vector(0, 0, 1), 1.6), False)
sketch10.addConstraint([
    Sketcher.Constraint("Diameter", 0, 3.2),
    Sketcher.Constraint("DistanceX", 0, 3, -1, 1, 23.0),
    Sketcher.Constraint("DistanceY", -1, 1, 0, 3, 5.0),
])
pocket2 = doc.addObject("PartDesign::Pocket", "Pocket001")
body.addObject(pocket2)
pocket2.Profile = sketch10
pocket2.Type = "ThroughAll"
doc.recompute()

boolean6 = doc.addObject("PartDesign::Boolean", "Boolean005")
body2.addObject(boolean6)
boolean6.Type = "Cut"
boolean6.addObjects([body7])

doc.recompute()
